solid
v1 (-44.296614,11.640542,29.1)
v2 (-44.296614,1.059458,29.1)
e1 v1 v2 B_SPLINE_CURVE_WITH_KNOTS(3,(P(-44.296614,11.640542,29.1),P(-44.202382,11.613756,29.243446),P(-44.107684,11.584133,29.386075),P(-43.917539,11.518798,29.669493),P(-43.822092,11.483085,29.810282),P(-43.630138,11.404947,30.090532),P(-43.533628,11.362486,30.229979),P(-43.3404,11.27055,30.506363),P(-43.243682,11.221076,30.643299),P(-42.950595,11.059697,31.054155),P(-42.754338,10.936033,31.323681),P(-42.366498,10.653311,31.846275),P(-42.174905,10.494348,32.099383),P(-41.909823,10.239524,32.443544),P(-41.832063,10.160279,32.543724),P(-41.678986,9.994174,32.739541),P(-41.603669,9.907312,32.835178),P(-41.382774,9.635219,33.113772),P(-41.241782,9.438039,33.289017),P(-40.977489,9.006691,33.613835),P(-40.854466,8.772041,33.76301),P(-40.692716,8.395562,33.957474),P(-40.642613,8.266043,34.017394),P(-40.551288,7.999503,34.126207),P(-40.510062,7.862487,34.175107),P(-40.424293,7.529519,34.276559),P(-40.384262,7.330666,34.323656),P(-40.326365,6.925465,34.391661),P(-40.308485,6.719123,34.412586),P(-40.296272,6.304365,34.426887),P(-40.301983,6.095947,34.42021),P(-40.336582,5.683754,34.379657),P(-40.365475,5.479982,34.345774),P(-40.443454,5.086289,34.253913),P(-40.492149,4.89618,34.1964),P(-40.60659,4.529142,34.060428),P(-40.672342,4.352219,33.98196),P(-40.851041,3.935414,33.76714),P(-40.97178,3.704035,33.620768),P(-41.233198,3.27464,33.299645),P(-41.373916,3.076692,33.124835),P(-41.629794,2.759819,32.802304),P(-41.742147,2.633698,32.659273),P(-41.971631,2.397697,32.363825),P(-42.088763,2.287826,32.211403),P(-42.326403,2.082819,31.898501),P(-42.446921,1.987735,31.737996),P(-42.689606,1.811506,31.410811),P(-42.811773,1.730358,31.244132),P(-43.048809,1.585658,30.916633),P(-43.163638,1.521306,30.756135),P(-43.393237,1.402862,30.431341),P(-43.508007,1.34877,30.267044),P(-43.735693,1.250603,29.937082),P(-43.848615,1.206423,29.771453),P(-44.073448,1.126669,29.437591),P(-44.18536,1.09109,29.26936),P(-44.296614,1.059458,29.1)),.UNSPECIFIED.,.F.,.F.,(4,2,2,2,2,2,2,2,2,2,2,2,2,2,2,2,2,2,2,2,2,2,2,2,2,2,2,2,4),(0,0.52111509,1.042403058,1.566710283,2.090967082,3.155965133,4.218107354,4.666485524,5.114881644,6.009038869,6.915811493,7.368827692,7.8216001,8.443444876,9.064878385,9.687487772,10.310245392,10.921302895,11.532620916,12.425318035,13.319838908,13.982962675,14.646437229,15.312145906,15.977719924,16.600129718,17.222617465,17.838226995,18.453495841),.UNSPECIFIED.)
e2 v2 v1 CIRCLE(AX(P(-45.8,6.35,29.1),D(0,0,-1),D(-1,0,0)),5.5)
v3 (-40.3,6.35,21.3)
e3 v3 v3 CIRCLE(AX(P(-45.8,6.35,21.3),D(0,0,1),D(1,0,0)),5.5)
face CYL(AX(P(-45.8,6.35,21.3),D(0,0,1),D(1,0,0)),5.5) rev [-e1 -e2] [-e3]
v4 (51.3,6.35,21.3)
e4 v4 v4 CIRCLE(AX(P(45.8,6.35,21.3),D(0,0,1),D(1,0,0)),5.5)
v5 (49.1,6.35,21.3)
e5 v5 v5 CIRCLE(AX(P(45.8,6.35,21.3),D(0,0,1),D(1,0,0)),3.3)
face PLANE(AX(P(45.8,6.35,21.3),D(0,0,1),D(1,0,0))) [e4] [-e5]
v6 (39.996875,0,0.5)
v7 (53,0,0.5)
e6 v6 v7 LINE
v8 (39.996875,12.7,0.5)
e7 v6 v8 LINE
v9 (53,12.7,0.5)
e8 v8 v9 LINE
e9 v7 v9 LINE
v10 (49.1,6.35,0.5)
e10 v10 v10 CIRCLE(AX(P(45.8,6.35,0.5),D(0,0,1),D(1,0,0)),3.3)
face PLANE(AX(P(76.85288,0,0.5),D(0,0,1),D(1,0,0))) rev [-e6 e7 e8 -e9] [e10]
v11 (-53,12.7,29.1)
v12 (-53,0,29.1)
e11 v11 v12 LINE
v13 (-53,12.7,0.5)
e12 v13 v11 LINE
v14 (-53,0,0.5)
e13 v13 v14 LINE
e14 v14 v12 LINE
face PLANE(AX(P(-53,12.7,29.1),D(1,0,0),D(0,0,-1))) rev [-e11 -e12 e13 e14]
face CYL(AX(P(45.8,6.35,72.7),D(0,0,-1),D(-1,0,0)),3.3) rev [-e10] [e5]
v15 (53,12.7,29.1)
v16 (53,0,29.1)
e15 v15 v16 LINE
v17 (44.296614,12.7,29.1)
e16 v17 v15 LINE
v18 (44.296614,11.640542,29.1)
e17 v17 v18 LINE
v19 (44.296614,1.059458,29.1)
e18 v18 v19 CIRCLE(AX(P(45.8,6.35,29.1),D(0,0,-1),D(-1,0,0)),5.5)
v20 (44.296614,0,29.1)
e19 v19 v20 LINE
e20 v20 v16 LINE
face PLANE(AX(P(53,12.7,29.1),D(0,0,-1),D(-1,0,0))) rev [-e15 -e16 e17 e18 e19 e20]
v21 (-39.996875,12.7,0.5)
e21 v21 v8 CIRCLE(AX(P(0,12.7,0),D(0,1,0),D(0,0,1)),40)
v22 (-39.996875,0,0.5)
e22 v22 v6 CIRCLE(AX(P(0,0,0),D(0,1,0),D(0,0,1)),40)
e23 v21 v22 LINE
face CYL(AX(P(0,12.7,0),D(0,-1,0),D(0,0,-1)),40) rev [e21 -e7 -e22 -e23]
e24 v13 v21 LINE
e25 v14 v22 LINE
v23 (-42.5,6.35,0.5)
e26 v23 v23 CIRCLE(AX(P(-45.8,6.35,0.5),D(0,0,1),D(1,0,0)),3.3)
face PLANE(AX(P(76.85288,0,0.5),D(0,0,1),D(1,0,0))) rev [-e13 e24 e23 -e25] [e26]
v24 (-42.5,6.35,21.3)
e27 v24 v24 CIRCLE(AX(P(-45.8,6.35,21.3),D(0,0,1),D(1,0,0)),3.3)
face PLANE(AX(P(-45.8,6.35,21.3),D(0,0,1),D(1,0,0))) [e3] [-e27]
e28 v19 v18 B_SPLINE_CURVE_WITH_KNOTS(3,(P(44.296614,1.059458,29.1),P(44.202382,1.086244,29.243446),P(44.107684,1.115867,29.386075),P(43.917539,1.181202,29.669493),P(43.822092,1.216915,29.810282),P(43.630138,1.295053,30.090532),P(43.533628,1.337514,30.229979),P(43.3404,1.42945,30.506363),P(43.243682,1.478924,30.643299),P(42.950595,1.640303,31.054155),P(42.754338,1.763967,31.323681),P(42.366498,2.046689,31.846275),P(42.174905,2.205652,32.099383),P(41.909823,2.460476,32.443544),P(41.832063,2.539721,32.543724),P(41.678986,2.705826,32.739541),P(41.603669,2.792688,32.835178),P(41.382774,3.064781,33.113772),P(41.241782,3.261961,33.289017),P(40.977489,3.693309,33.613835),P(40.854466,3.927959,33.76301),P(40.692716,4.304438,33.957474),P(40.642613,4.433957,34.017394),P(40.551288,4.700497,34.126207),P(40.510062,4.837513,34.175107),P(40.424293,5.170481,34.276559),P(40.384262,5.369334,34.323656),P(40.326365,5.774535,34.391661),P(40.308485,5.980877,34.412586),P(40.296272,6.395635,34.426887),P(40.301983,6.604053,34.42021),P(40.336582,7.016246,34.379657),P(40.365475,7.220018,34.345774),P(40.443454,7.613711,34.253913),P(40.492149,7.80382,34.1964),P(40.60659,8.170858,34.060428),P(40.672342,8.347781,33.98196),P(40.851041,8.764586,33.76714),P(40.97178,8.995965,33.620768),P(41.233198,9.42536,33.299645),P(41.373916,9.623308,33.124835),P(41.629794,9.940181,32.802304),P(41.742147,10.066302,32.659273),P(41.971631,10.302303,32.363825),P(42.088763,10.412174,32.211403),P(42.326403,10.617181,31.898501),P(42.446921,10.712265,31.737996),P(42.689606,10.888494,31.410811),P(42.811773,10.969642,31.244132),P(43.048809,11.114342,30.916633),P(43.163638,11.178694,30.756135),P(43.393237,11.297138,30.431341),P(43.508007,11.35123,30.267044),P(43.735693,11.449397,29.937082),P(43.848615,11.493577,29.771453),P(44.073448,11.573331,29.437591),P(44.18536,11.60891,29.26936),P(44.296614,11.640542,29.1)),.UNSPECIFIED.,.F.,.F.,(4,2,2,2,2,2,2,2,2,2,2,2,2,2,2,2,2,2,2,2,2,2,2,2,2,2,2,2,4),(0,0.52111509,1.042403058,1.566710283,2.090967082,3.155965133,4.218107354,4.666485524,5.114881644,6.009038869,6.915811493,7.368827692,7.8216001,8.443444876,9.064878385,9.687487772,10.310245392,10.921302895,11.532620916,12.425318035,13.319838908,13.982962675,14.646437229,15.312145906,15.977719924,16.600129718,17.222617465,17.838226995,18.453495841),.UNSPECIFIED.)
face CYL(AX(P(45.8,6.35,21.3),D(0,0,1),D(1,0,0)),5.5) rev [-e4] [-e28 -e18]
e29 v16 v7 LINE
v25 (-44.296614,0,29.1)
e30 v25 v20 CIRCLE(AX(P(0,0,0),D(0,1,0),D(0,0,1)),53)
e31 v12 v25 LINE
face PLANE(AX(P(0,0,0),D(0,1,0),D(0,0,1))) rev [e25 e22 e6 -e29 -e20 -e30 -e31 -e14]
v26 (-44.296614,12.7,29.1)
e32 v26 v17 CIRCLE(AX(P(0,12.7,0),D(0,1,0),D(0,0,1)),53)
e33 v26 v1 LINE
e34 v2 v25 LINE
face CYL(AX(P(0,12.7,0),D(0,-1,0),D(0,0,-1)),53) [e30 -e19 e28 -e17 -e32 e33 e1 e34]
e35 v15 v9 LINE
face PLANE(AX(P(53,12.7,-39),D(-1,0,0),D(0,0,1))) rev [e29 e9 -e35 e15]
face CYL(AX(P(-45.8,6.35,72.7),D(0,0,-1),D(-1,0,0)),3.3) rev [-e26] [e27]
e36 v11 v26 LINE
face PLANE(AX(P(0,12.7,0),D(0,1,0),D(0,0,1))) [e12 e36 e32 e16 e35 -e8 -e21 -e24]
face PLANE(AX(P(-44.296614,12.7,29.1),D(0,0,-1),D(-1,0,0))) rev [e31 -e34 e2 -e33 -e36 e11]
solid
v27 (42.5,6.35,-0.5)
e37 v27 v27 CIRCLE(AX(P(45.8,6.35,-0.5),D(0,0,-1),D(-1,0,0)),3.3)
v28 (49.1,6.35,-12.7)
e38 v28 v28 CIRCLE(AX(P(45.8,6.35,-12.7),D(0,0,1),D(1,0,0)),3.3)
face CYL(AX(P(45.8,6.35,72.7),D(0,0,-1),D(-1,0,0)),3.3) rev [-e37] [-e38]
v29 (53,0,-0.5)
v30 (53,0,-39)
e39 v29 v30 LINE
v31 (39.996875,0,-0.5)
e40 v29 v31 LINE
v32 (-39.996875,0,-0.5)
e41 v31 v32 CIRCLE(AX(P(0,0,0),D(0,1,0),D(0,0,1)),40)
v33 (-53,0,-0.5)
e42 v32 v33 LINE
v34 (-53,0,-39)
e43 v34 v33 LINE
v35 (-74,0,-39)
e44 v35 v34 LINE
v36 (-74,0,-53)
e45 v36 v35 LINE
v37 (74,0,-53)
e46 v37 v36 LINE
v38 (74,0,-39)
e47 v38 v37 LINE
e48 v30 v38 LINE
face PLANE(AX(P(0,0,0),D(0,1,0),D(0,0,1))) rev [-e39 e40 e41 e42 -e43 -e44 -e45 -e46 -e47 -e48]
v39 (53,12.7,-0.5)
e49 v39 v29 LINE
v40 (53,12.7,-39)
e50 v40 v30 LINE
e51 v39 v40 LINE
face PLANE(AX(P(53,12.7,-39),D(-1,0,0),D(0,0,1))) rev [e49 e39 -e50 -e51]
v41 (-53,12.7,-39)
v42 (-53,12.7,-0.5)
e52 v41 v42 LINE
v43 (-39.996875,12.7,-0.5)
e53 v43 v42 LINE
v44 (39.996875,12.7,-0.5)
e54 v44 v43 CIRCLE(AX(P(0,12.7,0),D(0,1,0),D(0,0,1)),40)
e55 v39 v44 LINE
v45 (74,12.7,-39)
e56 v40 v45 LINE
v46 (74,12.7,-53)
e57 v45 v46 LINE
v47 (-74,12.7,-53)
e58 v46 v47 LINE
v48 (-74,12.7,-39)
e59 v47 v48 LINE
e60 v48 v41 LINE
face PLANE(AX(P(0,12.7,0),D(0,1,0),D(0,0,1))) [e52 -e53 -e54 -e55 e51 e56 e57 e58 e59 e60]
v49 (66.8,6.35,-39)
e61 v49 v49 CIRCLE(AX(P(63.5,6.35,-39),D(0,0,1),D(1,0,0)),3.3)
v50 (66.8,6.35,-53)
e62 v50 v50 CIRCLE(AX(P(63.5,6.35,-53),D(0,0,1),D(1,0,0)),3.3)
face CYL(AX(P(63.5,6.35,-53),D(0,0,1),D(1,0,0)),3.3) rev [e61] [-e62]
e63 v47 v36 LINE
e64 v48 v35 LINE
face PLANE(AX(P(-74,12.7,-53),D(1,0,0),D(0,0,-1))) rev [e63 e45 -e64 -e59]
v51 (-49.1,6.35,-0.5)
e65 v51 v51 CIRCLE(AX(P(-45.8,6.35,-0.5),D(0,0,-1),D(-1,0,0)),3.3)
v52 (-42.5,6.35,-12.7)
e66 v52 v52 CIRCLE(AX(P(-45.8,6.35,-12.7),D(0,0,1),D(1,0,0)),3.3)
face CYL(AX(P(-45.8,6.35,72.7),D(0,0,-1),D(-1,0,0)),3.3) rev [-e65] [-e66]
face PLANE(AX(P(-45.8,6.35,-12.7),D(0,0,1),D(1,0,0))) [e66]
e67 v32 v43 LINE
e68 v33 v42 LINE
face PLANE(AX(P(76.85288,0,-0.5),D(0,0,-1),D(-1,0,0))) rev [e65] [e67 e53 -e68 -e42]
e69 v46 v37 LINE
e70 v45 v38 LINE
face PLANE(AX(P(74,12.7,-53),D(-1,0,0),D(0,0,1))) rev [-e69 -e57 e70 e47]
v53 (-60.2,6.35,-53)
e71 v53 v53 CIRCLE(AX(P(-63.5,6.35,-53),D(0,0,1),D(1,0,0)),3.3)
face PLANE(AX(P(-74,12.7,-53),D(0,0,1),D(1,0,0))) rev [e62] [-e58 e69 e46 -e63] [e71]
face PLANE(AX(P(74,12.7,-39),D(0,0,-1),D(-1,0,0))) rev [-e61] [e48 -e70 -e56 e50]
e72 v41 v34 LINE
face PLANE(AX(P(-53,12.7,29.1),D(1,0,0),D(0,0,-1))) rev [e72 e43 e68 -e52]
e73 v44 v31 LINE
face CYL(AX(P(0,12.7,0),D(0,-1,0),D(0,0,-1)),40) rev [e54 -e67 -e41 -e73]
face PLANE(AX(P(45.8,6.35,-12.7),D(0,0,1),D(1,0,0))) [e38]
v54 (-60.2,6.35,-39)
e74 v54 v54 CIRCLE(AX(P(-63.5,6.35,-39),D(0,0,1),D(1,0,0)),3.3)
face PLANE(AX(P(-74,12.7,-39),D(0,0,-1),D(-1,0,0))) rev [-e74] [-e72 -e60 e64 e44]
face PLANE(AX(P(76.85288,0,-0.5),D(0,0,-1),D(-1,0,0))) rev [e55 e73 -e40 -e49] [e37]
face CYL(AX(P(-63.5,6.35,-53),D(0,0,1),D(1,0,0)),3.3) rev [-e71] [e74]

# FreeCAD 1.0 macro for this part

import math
import FreeCAD as App
import Part
import Sketcher
from FreeCAD import Vector
Q = App.Units.Quantity

doc = App.newDocument("Part")
params = doc.addObject("Spreadsheet::Sheet", "Params")
for row, (alias, value) in enumerate([
    ("sketch1_diameter", "80 mm"),
    ("sketch1_radius", "53 mm"),
    ("sketch1_width", "148 mm"),
    ("sketch1_width2", "21 mm"),
    ("sketch1_height", "14 mm"),
    ("pad1_length", "12.7 mm"),
    ("sketch2_diameter", "6.6 mm"),
    ("sketch3_diameter", "6.6 mm"),
    ("pocket2_length", "72.7 mm"),
    ("pocket2_length2", "12.7 mm"),
    ("sketch4_height", "1 mm"),
    ("sketch5_diameter", "11 mm"),
    ("pocket4_length", "18.7 mm"),
], start=1):
    params.set(f"A{row}", alias)
    params.set(f"B{row}", "=" + value)
    params.setAlias(f"B{row}", alias)

body = doc.addObject("PartDesign::Body", "Body")
body.AllowCompound = True

sketch1 = body.newObject("Sketcher::SketchObject", "Sketch")
sketch1.AttachmentSupport = (doc.getObject("XZ_Plane"), [""])
sketch1.MapMode = "FlatFace"
sketch1.addGeometry(Part.LineSegment(Vector(74, -53, 0), Vector(-74, -53, 0)), False)
sketch1.addGeometry(Part.LineSegment(Vector(-74, -53, 0), Vector(-74, -39, 0)), False)
sketch1.addGeometry(Part.LineSegment(Vector(-74, -39, 0), Vector(-53, -39, 0)), False)
sketch1.addGeometry(Part.LineSegment(Vector(-53, -39, 0), Vector(-53, 29, 0)), False)
sketch1.addGeometry(Part.LineSegment(Vector(-53, 29, 0), Vector(-44, 29, 0)), False)
sketch1.addGeometry(Part.ArcOfCircle(Part.Circle(Vector(0, 0, 0), Vector(0, 0, 1), 53), math.radians(33), math.radians(147)), False)
sketch1.addGeometry(Part.LineSegment(Vector(44, 29, 0), Vector(53, 29, 0)), False)
sketch1.addGeometry(Part.LineSegment(Vector(53, 29, 0), Vector(53, -39, 0)), False)
sketch1.addGeometry(Part.LineSegment(Vector(53, -39, 0), Vector(74, -39, 0)), False)
sketch1.addGeometry(Part.LineSegment(Vector(74, -39, 0), Vector(74, -53, 0)), False)
sketch1.addGeometry(Part.Circle(Vector(0, 0, 0), Vector(0, 0, 1), 40), False)
sketch1.addConstraint(Sketcher.Constraint("Coincident", 0, 2, 1, 1))
sketch1.addConstraint(Sketcher.Constraint("Coincident", 1, 2, 2, 1))
sketch1.addConstraint(Sketcher.Constraint("Coincident", 2, 2, 3, 1))
sketch1.addConstraint(Sketcher.Constraint("Coincident", 3, 2, 4, 1))
sketch1.addConstraint(Sketcher.Constraint("Coincident", 4, 2, 5, 2))
sketch1.addConstraint(Sketcher.Constraint("Coincident", 5, 1, 6, 1))
sketch1.addConstraint(Sketcher.Constraint("Coincident", 6, 2, 7, 1))
sketch1.addConstraint(Sketcher.Constraint("Coincident", 7, 2, 8, 1))
sketch1.addConstraint(Sketcher.Constraint("Coincident", 8, 2, 9, 1))
sketch1.addConstraint(Sketcher.Constraint("Coincident", 9, 2, 0, 1))
sketch1.addConstraint(Sketcher.Constraint("Horizontal", 0))
sketch1.addConstraint(Sketcher.Constraint("Vertical", 1))
sketch1.addConstraint(Sketcher.Constraint("Horizontal", 2))
sketch1.addConstraint(Sketcher.Constraint("Vertical", 3))
sketch1.addConstraint(Sketcher.Constraint("Horizontal", 4))
sketch1.addConstraint(Sketcher.Constraint("Horizontal", 6))
sketch1.addConstraint(Sketcher.Constraint("Vertical", 7))
sketch1.addConstraint(Sketcher.Constraint("Horizontal", 8))
sketch1.addConstraint(Sketcher.Constraint("Vertical", 9))
sketch1.addConstraint(Sketcher.Constraint("Coincident", 5, 3, -1, 1))
sketch1.addConstraint(Sketcher.Constraint("Coincident", 10, 3, -1, 1))
sketch1.addConstraint(Sketcher.Constraint("Symmetric", 3, 2, 6, 2, -2))
sketch1.addConstraint(Sketcher.Constraint("Symmetric", 1, 2, 8, 2, -2))
sketch1.addConstraint(Sketcher.Constraint("Diameter", 10, Q("80 mm")))
sketch1.addConstraint(Sketcher.Constraint("Radius", 5, Q("53 mm")))
sketch1.addConstraint(Sketcher.Constraint("DistanceX", 0, 2, 0, 1, Q("148 mm")))
sketch1.addConstraint(Sketcher.Constraint("DistanceX", 2, 1, 2, 2, Q("21 mm")))
sketch1.addConstraint(Sketcher.Constraint("DistanceY", 1, 1, 1, 2, Q("14 mm")))
sketch1.addConstraint(Sketcher.Constraint("DistanceY", 3, 1, 3, 2, Q("68.1 mm")))
sketch1.addConstraint(Sketcher.Constraint("DistanceY", 0, 2, -1, 1, Q("53 mm")))
sketch1.setExpression("Constraints[23]", "Params.sketch1_diameter")
sketch1.setExpression("Constraints[24]", "Params.sketch1_radius")
sketch1.setExpression("Constraints[25]", "Params.sketch1_width")
sketch1.setExpression("Constraints[26]", "Params.sketch1_width2")
sketch1.setExpression("Constraints[27]", "Params.sketch1_height")
pad1 = body.newObject("PartDesign::Pad", "Pad")
pad1.Profile = sketch1
pad1.setExpression("Length", "Params.pad1_length")
pad1.Reversed = True

sketch2 = body.newObject("Sketcher::SketchObject", "Sketch001")
sketch2.AttachmentSupport = (doc.getObject("XY_Plane"), [""])
sketch2.MapMode = "FlatFace"
sketch2.AttachmentOffset = App.Placement(Vector(0, 0, -39), App.Rotation())
sketch2.addGeometry(Part.Circle(Vector(-63.5, 6.3, 0), Vector(0, 0, 1), 3.3), False)
sketch2.addGeometry(Part.Circle(Vector(63.5, 6.3, 0), Vector(0, 0, 1), 3.3), False)
sketch2.addConstraint(Sketcher.Constraint("Equal", 0, 1))
sketch2.addConstraint(Sketcher.Constraint("Symmetric", 0, 3, 1, 3, -2))
sketch2.addConstraint(Sketcher.Constraint("Diameter", 0, Q("6.6 mm")))
sketch2.addConstraint(Sketcher.Constraint("DistanceX", 0, 3, 1, 3, Q("127 mm")))
sketch2.addConstraint(Sketcher.Constraint("DistanceY", -1, 1, 0, 3, Q("6.35 mm")))
sketch2.setExpression("Constraints[2]", "Params.sketch2_diameter")
pocket1 = body.newObject("PartDesign::Pocket", "Pocket")
pocket1.Profile = sketch2
pocket1.Type = "ThroughAll"

sketch3 = body.newObject("Sketcher::SketchObject", "Sketch002")
sketch3.AttachmentSupport = (doc.getObject("XY_Plane"), [""])
sketch3.MapMode = "FlatFace"
sketch3.addGeometry(Part.Circle(Vector(45.8, 6.3, 0), Vector(0, 0, 1), 3.3), False)
sketch3.addGeometry(Part.Circle(Vector(-45.8, 6.3, 0), Vector(0, 0, 1), 3.3), False)
sketch3.addConstraint(Sketcher.Constraint("Equal", 0, 1))
sketch3.addConstraint(Sketcher.Constraint("Symmetric", 0, 3, 1, 3, -2))
sketch3.addConstraint(Sketcher.Constraint("Diameter", 0, Q("6.6 mm")))
sketch3.addConstraint(Sketcher.Constraint("DistanceX", -1, 1, 0, 3, Q("45.8 mm")))
sketch3.addConstraint(Sketcher.Constraint("DistanceY", -1, 1, 0, 3, Q("6.35 mm")))
sketch3.setExpression("Constraints[2]", "Params.sketch3_diameter")
pocket2 = body.newObject("PartDesign::Pocket", "Pocket001")
pocket2.Profile = sketch3
pocket2.Type = "TwoLengths"
pocket2.setExpression("Length", "Params.pocket2_length")
pocket2.setExpression("Length2", "Params.pocket2_length2")
pocket2.Reversed = True

sketch4 = body.newObject("Sketcher::SketchObject", "Sketch003")
sketch4.AttachmentSupport = (doc.getObject("XZ_Plane"), [""])
sketch4.MapMode = "FlatFace"
sketch4.AttachmentOffset = App.Placement(Vector(0, 0, -12.7), App.Rotation())
sketch4.addGeometry(Part.LineSegment(Vector(-76.9, -0.5, 0), Vector(-76.9, 0.5, 0)), False)
sketch4.addGeometry(Part.LineSegment(Vector(-76.9, 0.5, 0), Vector(76.9, 0.5, 0)), False)
sketch4.addGeometry(Part.LineSegment(Vector(76.9, 0.5, 0), Vector(76.9, -0.5, 0)), False)
sketch4.addGeometry(Part.LineSegment(Vector(76.9, -0.5, 0), Vector(-76.9, -0.5, 0)), False)
sketch4.addConstraint(Sketcher.Constraint("Coincident", 0, 2, 1, 1))
sketch4.addConstraint(Sketcher.Constraint("Coincident", 1, 2, 2, 1))
sketch4.addConstraint(Sketcher.Constraint("Coincident", 2, 2, 3, 1))
sketch4.addConstraint(Sketcher.Constraint("Coincident", 3, 2, 0, 1))
sketch4.addConstraint(Sketcher.Constraint("Vertical", 0))
sketch4.addConstraint(Sketcher.Constraint("Horizontal", 1))
sketch4.addConstraint(Sketcher.Constraint("Vertical", 2))
sketch4.addConstraint(Sketcher.Constraint("Horizontal", 3))
sketch4.addConstraint(Sketcher.Constraint("Symmetric", 0, 2, 2, 2, -1, 1))
sketch4.addConstraint(Sketcher.Constraint("DistanceY", 0, 1, 0, 2, Q("1 mm")))
sketch4.addConstraint(Sketcher.Constraint("DistanceX", 1, 1, 1, 2, Q("153.705761 mm")))
sketch4.setExpression("Constraints[9]", "Params.sketch4_height")
pocket3 = body.newObject("PartDesign::Pocket", "Pocket002")
pocket3.Profile = sketch4
pocket3.Type = "ThroughAll"
pocket3.Midplane = True

sketch5 = body.newObject("Sketcher::SketchObject", "Sketch004")
sketch5.AttachmentSupport = (doc.getObject("XY_Plane"), [""])
sketch5.MapMode = "FlatFace"
sketch5.AttachmentOffset = App.Placement(Vector(0, 0, 40), App.Rotation())
sketch5.addGeometry(Part.Circle(Vector(46, 6, 0), Vector(0, 0, 1), 6), False)
sketch5.addGeometry(Part.Circle(Vector(-46, 6, 0), Vector(0, 0, 1), 6), False)
sketch5.addConstraint(Sketcher.Constraint("Equal", 0, 1))
sketch5.addConstraint(Sketcher.Constraint("Symmetric", 0, 3, 1, 3, -2))
sketch5.addConstraint(Sketcher.Constraint("Diameter", 0, Q("11 mm")))
sketch5.addConstraint(Sketcher.Constraint("DistanceX", -1, 1, 0, 3, Q("45.8 mm")))
sketch5.addConstraint(Sketcher.Constraint("DistanceY", -1, 1, 0, 3, Q("6.35 mm")))
sketch5.setExpression("Constraints[2]", "Params.sketch5_diameter")
pocket4 = body.newObject("PartDesign::Pocket", "Pocket003")
pocket4.Profile = sketch5
pocket4.setExpression("Length", "Params.pocket4_length")

doc.recompute()
